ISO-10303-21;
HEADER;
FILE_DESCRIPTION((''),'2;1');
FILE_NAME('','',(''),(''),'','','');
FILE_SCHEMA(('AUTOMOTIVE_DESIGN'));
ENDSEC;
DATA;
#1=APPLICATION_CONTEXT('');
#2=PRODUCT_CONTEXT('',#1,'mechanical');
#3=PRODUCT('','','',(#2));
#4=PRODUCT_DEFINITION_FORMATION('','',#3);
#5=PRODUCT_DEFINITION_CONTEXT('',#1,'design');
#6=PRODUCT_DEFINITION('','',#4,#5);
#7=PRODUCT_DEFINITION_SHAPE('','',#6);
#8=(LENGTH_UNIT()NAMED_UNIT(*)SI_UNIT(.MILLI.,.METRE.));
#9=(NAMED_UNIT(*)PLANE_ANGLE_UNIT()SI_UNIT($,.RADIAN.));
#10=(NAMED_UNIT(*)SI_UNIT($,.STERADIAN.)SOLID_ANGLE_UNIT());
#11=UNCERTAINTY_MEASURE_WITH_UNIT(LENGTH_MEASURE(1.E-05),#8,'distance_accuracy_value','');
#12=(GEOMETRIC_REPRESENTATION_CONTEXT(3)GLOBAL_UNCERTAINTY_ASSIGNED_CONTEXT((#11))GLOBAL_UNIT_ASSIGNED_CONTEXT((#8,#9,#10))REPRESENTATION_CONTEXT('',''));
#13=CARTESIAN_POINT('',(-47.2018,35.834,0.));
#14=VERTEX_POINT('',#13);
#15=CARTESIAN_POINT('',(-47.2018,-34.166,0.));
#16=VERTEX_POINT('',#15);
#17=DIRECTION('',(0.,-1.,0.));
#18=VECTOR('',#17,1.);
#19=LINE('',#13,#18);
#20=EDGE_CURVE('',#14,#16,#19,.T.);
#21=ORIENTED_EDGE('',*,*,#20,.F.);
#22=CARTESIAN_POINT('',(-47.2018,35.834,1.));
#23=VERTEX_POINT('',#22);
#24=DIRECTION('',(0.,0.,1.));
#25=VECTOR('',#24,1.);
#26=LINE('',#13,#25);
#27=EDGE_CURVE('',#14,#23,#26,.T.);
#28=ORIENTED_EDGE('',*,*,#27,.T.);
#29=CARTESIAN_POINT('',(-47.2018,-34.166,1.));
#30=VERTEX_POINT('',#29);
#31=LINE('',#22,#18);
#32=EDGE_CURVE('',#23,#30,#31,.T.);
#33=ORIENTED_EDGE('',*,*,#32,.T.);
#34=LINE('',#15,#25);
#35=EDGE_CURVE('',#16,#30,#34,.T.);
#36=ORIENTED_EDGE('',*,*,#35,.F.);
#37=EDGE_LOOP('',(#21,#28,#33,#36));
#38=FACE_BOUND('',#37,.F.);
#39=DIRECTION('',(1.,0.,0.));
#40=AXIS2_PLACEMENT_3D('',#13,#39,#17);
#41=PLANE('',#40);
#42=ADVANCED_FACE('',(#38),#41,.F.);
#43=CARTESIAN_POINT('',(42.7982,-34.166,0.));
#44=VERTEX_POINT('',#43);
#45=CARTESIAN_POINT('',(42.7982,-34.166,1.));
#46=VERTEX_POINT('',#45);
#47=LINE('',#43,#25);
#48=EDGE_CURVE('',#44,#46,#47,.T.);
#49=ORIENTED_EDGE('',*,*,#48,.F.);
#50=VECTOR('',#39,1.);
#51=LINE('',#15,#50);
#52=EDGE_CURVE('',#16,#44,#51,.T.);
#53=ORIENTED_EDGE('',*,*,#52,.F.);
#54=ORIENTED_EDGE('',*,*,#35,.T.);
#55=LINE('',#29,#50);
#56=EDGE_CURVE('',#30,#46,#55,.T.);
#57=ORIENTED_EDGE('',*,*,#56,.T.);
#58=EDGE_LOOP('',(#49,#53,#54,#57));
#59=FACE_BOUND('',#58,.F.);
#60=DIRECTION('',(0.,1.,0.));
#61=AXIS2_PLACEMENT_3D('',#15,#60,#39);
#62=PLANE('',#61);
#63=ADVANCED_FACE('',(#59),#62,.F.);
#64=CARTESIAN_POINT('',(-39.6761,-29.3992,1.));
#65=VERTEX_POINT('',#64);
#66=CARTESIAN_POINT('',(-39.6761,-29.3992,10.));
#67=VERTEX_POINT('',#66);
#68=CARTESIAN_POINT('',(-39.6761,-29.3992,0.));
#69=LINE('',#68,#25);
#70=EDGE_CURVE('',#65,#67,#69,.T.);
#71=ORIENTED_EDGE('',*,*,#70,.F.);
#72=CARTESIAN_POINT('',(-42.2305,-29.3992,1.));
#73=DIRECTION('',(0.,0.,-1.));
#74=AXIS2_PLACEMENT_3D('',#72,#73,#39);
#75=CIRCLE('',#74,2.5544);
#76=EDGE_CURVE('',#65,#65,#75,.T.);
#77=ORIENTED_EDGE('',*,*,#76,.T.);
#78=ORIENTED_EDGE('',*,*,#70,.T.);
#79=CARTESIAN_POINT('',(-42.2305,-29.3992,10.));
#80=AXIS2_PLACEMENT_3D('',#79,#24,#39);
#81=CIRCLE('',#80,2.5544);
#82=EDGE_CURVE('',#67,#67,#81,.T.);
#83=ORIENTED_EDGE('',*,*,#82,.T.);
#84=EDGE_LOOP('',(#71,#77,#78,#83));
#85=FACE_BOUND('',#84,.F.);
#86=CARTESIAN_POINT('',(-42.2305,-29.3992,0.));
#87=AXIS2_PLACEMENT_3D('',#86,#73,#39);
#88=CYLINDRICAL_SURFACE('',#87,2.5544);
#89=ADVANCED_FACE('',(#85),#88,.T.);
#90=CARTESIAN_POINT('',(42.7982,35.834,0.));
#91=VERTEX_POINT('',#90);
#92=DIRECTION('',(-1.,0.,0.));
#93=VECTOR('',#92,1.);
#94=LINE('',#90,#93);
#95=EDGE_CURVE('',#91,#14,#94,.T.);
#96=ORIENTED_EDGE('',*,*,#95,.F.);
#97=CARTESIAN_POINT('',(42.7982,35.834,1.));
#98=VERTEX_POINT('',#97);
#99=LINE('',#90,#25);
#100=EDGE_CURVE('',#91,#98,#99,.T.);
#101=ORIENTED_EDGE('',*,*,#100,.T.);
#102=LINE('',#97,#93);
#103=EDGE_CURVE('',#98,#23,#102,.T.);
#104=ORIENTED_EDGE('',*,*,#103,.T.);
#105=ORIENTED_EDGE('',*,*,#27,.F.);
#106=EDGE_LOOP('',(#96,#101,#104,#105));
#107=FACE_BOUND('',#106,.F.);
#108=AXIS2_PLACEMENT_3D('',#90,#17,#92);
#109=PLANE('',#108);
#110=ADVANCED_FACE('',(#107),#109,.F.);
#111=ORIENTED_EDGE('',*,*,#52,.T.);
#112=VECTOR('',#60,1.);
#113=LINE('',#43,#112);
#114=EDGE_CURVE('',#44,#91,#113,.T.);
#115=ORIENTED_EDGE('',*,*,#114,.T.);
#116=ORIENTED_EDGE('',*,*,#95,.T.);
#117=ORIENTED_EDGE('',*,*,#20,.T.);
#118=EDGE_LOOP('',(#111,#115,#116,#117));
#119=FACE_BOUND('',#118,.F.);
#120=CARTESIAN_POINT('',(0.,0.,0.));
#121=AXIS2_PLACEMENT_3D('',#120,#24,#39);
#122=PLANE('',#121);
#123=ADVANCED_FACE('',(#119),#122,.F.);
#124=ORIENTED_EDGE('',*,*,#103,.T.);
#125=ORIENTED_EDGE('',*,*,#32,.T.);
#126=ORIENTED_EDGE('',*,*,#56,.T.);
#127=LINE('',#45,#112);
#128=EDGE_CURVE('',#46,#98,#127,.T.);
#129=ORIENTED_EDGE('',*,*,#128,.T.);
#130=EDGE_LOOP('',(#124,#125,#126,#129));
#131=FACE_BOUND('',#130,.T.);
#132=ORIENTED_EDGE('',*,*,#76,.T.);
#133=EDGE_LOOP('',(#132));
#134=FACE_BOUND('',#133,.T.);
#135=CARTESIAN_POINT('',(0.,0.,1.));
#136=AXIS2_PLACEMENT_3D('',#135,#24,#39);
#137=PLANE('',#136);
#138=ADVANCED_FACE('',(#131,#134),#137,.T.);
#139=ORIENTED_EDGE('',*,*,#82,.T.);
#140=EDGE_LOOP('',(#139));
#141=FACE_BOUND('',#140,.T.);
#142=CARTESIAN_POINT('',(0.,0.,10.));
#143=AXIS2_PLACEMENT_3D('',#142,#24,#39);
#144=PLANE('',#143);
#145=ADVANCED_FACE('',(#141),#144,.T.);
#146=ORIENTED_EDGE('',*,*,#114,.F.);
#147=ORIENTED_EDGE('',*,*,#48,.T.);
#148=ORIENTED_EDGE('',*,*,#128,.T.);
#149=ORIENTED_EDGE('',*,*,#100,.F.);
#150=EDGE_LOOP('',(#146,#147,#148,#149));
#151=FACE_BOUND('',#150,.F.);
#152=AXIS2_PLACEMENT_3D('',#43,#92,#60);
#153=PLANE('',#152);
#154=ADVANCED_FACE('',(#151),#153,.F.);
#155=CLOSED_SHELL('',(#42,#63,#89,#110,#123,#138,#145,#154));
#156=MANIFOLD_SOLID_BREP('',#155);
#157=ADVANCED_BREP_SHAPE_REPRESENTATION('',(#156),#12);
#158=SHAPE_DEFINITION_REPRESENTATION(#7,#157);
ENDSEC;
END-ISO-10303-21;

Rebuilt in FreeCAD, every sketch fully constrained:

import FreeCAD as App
import Part
import Sketcher


def add_polygon(sketch, points):
    """Adds a closed chain of lines whose ends are joined by coincident constraints."""
    first, n = sketch.GeometryCount, len(points)
    for a, b in zip(points, points[1:] + points[:1]):
        sketch.addGeometry(Part.LineSegment(App.Vector(*a, 0), App.Vector(*b, 0)), False)
    for i in range(n):
        sketch.addConstraint(Sketcher.Constraint("Coincident", first + i, 2, first + (i + 1) % n, 1))

doc = App.newDocument("Part")
body = doc.addObject("PartDesign::Body", "Body")

sketch1 = body.newObject("Sketcher::SketchObject", "Sketch")
sketch1.AttachmentSupport = (doc.getObject("XY_Plane"), [""])
sketch1.MapMode = "FlatFace"
add_polygon(sketch1, [(-47.2018, 35.834), (-47.2018, -34.166), (42.7982, -34.166), (42.7982, 35.834)])
sketch1.addConstraint([
    Sketcher.Constraint("Vertical", 0),
    Sketcher.Constraint("Horizontal", 1),
    Sketcher.Constraint("Vertical", 2),
    Sketcher.Constraint("Horizontal", 3),
    Sketcher.Constraint("DistanceX", 1, 1, 1, 2, 90.0),
    Sketcher.Constraint("DistanceY", 0, 2, 0, 1, 70.0),
    Sketcher.Constraint("DistanceY", 0, 2, -1, 1, 34.166),
    Sketcher.Constraint("DistanceX", 0, 2, -1, 1, 47.2018),
])
pad1 = body.newObject("PartDesign::Pad", "Pad")
pad1.Profile = sketch1
pad1.Length = 1

sketch2 = body.newObject("Sketcher::SketchObject", "Sketch001")
sketch2.AttachmentSupport = (doc.getObject("XY_Plane"), [""])
sketch2.MapMode = "FlatFace"
sketch2.addGeometry(Part.Circle(App.Vector(-42.2305, -29.3992, 0), App.Vector(0, 0, 1), 2.5544), False)
sketch2.addConstraint([
    Sketcher.Constraint("Diameter", 0, 5.1088),
    Sketcher.Constraint("DistanceX", 0, 3, -1, 1, 42.2305),
    Sketcher.Constraint("DistanceY", 0, 3, -1, 1, 29.3992),
])
pad2 = body.newObject("PartDesign::Pad", "Pad001")
pad2.Profile = sketch2
pad2.Length = 10

doc.recompute()
